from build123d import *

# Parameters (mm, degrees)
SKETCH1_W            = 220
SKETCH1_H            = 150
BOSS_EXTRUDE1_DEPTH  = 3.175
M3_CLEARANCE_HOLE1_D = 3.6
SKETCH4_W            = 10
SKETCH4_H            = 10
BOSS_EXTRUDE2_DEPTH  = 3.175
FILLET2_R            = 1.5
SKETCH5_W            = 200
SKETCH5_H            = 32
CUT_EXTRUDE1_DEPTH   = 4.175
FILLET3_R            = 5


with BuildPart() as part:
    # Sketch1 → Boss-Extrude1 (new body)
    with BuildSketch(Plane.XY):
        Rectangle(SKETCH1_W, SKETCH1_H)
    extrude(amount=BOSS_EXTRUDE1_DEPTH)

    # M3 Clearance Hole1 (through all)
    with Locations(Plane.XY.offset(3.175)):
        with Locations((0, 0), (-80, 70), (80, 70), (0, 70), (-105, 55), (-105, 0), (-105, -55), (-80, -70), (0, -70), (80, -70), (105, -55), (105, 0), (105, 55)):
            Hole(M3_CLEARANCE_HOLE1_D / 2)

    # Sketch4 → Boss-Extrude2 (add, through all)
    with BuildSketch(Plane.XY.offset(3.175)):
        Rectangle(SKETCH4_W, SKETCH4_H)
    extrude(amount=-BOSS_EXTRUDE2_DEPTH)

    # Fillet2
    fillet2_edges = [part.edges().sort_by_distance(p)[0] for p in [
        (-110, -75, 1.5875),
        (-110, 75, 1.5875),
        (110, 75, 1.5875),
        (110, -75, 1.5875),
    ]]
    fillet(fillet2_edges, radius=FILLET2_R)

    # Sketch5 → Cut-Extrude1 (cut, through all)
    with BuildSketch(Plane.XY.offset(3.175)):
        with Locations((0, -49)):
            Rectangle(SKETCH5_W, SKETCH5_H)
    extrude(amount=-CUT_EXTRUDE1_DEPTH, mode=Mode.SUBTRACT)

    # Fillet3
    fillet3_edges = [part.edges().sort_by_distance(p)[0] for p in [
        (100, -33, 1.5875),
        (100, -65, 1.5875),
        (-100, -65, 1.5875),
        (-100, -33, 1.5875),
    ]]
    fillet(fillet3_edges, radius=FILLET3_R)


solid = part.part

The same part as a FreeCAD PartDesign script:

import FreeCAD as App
import Part
import Sketcher
Q = App.Units.Quantity


def edges_at(feature, points):
    """Names of the edges that pass closest to the given points."""
    edges = feature.Shape.Edges
    near = lambda p: min(range(len(edges)), key=lambda i: edges[i].distToShape(Part.Vertex(*p))[0])
    return sorted({f"Edge{near(p) + 1}" for p in points})


def add_polygon(sketch, points):
    """Adds a closed chain of lines whose ends are joined by coincident constraints."""
    first, n = sketch.GeometryCount, len(points)
    for a, b in zip(points, points[1:] + points[:1]):
        sketch.addGeometry(Part.LineSegment(App.Vector(*a, 0), App.Vector(*b, 0)), False)
    for i in range(n):
        sketch.addConstraint(Sketcher.Constraint("Coincident", first + i, 2, first + (i + 1) % n, 1))

doc = App.newDocument("Part")
body = doc.addObject("PartDesign::Body", "Body")

sketch1 = body.newObject("Sketcher::SketchObject", "Sketch")
sketch1.AttachmentSupport = (doc.getObject("XY_Plane"), [""])
sketch1.MapMode = "FlatFace"
add_polygon(sketch1, [(-110, 75), (-110, -75), (110, -75), (110, 75)])
sketch1.addConstraint(Sketcher.Constraint("Vertical", 0))
sketch1.addConstraint(Sketcher.Constraint("Horizontal", 1))
sketch1.addConstraint(Sketcher.Constraint("Vertical", 2))
sketch1.addConstraint(Sketcher.Constraint("Horizontal", 3))
sketch1.addConstraint(Sketcher.Constraint("Symmetric", 0, 2, 2, 2, -1, 1))
sketch1.addConstraint(Sketcher.Constraint("DistanceX", 1, 1, 1, 2, Q("220 mm")))
sketch1.addConstraint(Sketcher.Constraint("DistanceY", 0, 2, 0, 1, Q("150 mm")))
pad1 = body.newObject("PartDesign::Pad", "Pad")
pad1.Profile = sketch1
pad1.Length = 3.175

sketch2 = body.newObject("Sketcher::SketchObject", "Sketch001")
sketch2.AttachmentSupport = (doc.getObject("XY_Plane"), [""])
sketch2.MapMode = "FlatFace"
sketch2.AttachmentOffset = App.Placement(App.Vector(0, 0, 3.175), App.Rotation())
sketch2.addGeometry(Part.Circle(App.Vector(0, 0, 0), App.Vector(0, 0, 1), 1.8), False)
sketch2.addGeometry(Part.Circle(App.Vector(-80, 70, 0), App.Vector(0, 0, 1), 1.8), False)
sketch2.addGeometry(Part.Circle(App.Vector(80, 70, 0), App.Vector(0, 0, 1), 1.8), False)
sketch2.addGeometry(Part.Circle(App.Vector(0, 70, 0), App.Vector(0, 0, 1), 1.8), False)
sketch2.addGeometry(Part.Circle(App.Vector(-105, 55, 0), App.Vector(0, 0, 1), 1.8), False)
sketch2.addGeometry(Part.Circle(App.Vector(-105, 0, 0), App.Vector(0, 0, 1), 1.8), False)
sketch2.addGeometry(Part.Circle(App.Vector(-105, -55, 0), App.Vector(0, 0, 1), 1.8), False)
sketch2.addGeometry(Part.Circle(App.Vector(-80, -70, 0), App.Vector(0, 0, 1), 1.8), False)
sketch2.addGeometry(Part.Circle(App.Vector(0, -70, 0), App.Vector(0, 0, 1), 1.8), False)
sketch2.addGeometry(Part.Circle(App.Vector(80, -70, 0), App.Vector(0, 0, 1), 1.8), False)
sketch2.addGeometry(Part.Circle(App.Vector(105, -55, 0), App.Vector(0, 0, 1), 1.8), False)
sketch2.addGeometry(Part.Circle(App.Vector(105, 0, 0), App.Vector(0, 0, 1), 1.8), False)
sketch2.addGeometry(Part.Circle(App.Vector(105, 55, 0), App.Vector(0, 0, 1), 1.8), False)
sketch2.addConstraint(Sketcher.Constraint("Coincident", 0, 3, -1, 1))
sketch2.addConstraint(Sketcher.Constraint("Equal", 0, 1))
sketch2.addConstraint(Sketcher.Constraint("Equal", 1, 2))
sketch2.addConstraint(Sketcher.Constraint("Equal", 2, 3))
sketch2.addConstraint(Sketcher.Constraint("Equal", 3, 4))
sketch2.addConstraint(Sketcher.Constraint("Equal", 4, 5))
sketch2.addConstraint(Sketcher.Constraint("Equal", 5, 6))
sketch2.addConstraint(Sketcher.Constraint("Equal", 6, 7))
sketch2.addConstraint(Sketcher.Constraint("Equal", 7, 8))
sketch2.addConstraint(Sketcher.Constraint("Equal", 8, 9))
sketch2.addConstraint(Sketcher.Constraint("Equal", 9, 10))
sketch2.addConstraint(Sketcher.Constraint("Equal", 10, 11))
sketch2.addConstraint(Sketcher.Constraint("Equal", 11, 12))
sketch2.addConstraint(Sketcher.Constraint("Symmetric", 2, 3, 7, 3, -1, 1))
sketch2.addConstraint(Sketcher.Constraint("Symmetric", 3, 3, 8, 3, -1, 1))
sketch2.addConstraint(Sketcher.Constraint("Symmetric", 1, 3, 9, 3, -1, 1))
sketch2.addConstraint(Sketcher.Constraint("Symmetric", 4, 3, 10, 3, -1, 1))
sketch2.addConstraint(Sketcher.Constraint("Symmetric", 5, 3, 11, 3, -1, 1))
sketch2.addConstraint(Sketcher.Constraint("Symmetric", 6, 3, 12, 3, -1, 1))
sketch2.addConstraint(Sketcher.Constraint("Symmetric", 1, 3, 2, 3, -2))
sketch2.addConstraint(Sketcher.Constraint("Symmetric", 6, 3, 10, 3, -2))
sketch2.addConstraint(Sketcher.Constraint("PointOnObject", 3, 3, -2))
sketch2.addConstraint(Sketcher.Constraint("PointOnObject", 5, 3, -1))
sketch2.addConstraint(Sketcher.Constraint("Horizontal", 2, 3, 3, 3))
sketch2.addConstraint(Sketcher.Constraint("Vertical", 4, 3, 5, 3))
sketch2.addConstraint(Sketcher.Constraint("Diameter", 0, Q("3.6 mm")))
sketch2.addConstraint(Sketcher.Constraint("DistanceX", 1, 3, -1, 1, Q("80 mm")))
sketch2.addConstraint(Sketcher.Constraint("DistanceY", -1, 1, 1, 3, Q("70 mm")))
sketch2.addConstraint(Sketcher.Constraint("DistanceX", 4, 3, -1, 1, Q("105 mm")))
sketch2.addConstraint(Sketcher.Constraint("DistanceY", -1, 1, 4, 3, Q("55 mm")))
doc.recompute()
hole = body.newObject("PartDesign::Hole", "Hole")
hole.Profile = sketch2
hole.ThreadType = "None"
hole.Diameter = 3.6
hole.DepthType = "ThroughAll"

sketch3 = body.newObject("Sketcher::SketchObject", "Sketch002")
sketch3.AttachmentSupport = (doc.getObject("XY_Plane"), [""])
sketch3.MapMode = "FlatFace"
sketch3.AttachmentOffset = App.Placement(App.Vector(0, 0, 3.175), App.Rotation())
add_polygon(sketch3, [(-5, 5), (-5, -5), (5, -5), (5, 5)])
sketch3.addConstraint(Sketcher.Constraint("Vertical", 0))
sketch3.addConstraint(Sketcher.Constraint("Horizontal", 1))
sketch3.addConstraint(Sketcher.Constraint("Vertical", 2))
sketch3.addConstraint(Sketcher.Constraint("Horizontal", 3))
sketch3.addConstraint(Sketcher.Constraint("Symmetric", 0, 2, 2, 2, -1, 1))
sketch3.addConstraint(Sketcher.Constraint("Equal", 3, 0))
sketch3.addConstraint(Sketcher.Constraint("DistanceX", 1, 1, 1, 2, Q("10 mm")))
pad2 = body.newObject("PartDesign::Pad", "Pad001")
pad2.Profile = sketch3
pad2.Length = 3.175
pad2.Reversed = True
doc.recompute()

fillet = body.newObject("PartDesign::Fillet", "Fillet")
fillet.Base = (pad2, edges_at(pad2, [
    (-110, -75, 1.587),
    (-110, 75, 1.587),
    (110, 75, 1.587),
    (110, -75, 1.587),
]))
fillet.Radius = 1.5

sketch4 = body.newObject("Sketcher::SketchObject", "Sketch003")
sketch4.AttachmentSupport = (doc.getObject("XY_Plane"), [""])
sketch4.MapMode = "FlatFace"
sketch4.AttachmentOffset = App.Placement(App.Vector(0, 0, 3.175), App.Rotation())
add_polygon(sketch4, [(-100, -33), (-100, -65), (100, -65), (100, -33)])
sketch4.addConstraint(Sketcher.Constraint("Vertical", 0))
sketch4.addConstraint(Sketcher.Constraint("Horizontal", 1))
sketch4.addConstraint(Sketcher.Constraint("Vertical", 2))
sketch4.addConstraint(Sketcher.Constraint("Horizontal", 3))
sketch4.addConstraint(Sketcher.Constraint("DistanceX", 1, 1, 1, 2, Q("200 mm")))
sketch4.addConstraint(Sketcher.Constraint("DistanceY", 0, 2, 0, 1, Q("32 mm")))
sketch4.addConstraint(Sketcher.Constraint("DistanceX", 0, 2, -1, 1, Q("100 mm")))
sketch4.addConstraint(Sketcher.Constraint("DistanceY", 0, 2, -1, 1, Q("65 mm")))
pocket1 = body.newObject("PartDesign::Pocket", "Pocket")
pocket1.Profile = sketch4
pocket1.Type = "ThroughAll"
doc.recompute()

fillet2 = body.newObject("PartDesign::Fillet", "Fillet001")
fillet2.Base = (pocket1, edges_at(pocket1, [
    (100, -33, 1.587),
    (100, -65, 1.587),
    (-100, -65, 1.587),
    (-100, -33, 1.587),
]))
fillet2.Radius = 5

doc.recompute()
